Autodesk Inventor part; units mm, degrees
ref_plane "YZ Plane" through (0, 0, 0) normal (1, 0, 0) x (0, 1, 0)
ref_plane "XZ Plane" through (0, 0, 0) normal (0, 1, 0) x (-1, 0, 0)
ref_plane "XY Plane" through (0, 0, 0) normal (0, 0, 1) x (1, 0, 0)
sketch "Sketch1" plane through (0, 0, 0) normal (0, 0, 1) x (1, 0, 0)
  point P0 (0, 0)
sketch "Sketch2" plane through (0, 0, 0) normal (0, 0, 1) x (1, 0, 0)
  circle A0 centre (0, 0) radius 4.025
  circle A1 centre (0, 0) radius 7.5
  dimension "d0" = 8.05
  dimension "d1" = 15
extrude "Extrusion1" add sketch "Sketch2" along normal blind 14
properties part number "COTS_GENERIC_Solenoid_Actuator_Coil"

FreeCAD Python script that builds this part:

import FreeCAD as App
import Part
import Sketcher
from FreeCAD import Vector
Q = App.Units.Quantity

doc = App.newDocument("Part")
body = doc.addObject("PartDesign::Body", "Body")

# Sketch on XY plane
sketch1 = body.newObject("Sketcher::SketchObject", "Sketch")
sketch1.AttachmentSupport = (doc.getObject("XY_Plane"), [""])
sketch1.MapMode = "FlatFace"
sketch1.addGeometry([
    Part.Circle(Vector(0, 0, 0), Vector(0, 0, 1), 7.5),
    Part.Circle(Vector(0, 0, 0), Vector(0, 0, 1), 4),
], False)
sketch1.addConstraint([
    Sketcher.Constraint("Coincident", 0, 3, -1, 1),
    Sketcher.Constraint("Coincident", 1, 3, -1, 1),
    Sketcher.Constraint("Diameter", 0, Q("15 mm")),
    Sketcher.Constraint("Diameter", 1, Q("8.05 mm")),
])
pad1 = body.newObject("PartDesign::Pad", "Pad")
pad1.Profile = sketch1
pad1.Length = 14

doc.recompute()
